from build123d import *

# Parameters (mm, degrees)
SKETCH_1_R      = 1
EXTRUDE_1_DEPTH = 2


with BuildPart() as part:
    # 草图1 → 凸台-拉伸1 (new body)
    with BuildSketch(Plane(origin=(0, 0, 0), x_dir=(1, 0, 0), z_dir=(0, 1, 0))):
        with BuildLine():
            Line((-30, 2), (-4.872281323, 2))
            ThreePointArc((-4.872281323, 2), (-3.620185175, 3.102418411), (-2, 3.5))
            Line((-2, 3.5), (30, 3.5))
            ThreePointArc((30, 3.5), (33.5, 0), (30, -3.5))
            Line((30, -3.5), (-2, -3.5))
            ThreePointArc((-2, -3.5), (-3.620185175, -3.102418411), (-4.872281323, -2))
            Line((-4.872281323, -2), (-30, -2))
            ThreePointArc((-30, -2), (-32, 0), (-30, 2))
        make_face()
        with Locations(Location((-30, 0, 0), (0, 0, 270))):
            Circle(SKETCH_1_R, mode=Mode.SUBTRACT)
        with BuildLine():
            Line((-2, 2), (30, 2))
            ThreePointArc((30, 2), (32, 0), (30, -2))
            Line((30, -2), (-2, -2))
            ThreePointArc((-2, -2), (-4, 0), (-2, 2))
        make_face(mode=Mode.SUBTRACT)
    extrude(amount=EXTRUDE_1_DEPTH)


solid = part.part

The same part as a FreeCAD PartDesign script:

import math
import FreeCAD as App
import Part
import Sketcher

V = App.Vector

doc = App.newDocument("Part")
body = doc.addObject("PartDesign::Body", "Body")

# Sketch on XZ plane
sketch1 = body.newObject("Sketcher::SketchObject", "Sketch")
sketch1.AttachmentSupport = (doc.getObject("XZ_Plane"), [""])
sketch1.MapMode = "FlatFace"
sketch1.addGeometry([
    Part.LineSegment(V(-4.9, -2, 0), V(-30, -2, 0)),  # 0
    Part.ArcOfCircle(Part.Circle(V(-30, 0, 0), V(0, 0, 1), 2), math.radians(90), math.radians(270)),  # 1
    Part.LineSegment(V(-30, 2, 0), V(-4.9, 2, 0)),  # 2
    Part.ArcOfCircle(Part.Circle(V(-2, 0, 0), V(0, 0, 1), 3.5), math.radians(90), math.radians(145)),  # 3
    Part.LineSegment(V(-2, 3.5, 0), V(30, 3.5, 0)),  # 4
    Part.ArcOfCircle(Part.Circle(V(30, 0, 0), V(0, 0, 1), 3.5), math.radians(-90), math.radians(90)),  # 5
    Part.LineSegment(V(30, -3.5, 0), V(-2, -3.5, 0)),  # 6
    Part.ArcOfCircle(Part.Circle(V(-2, 0, 0), V(0, 0, 1), 3.5), math.radians(-145), math.radians(-90)),  # 7
    Part.LineSegment(V(-2, -2, 0), V(30, -2, 0)),  # 8
    Part.ArcOfCircle(Part.Circle(V(30, 0, 0), V(0, 0, 1), 2), math.radians(-90), math.radians(90)),  # 9
    Part.LineSegment(V(30, 2, 0), V(-2, 2, 0)),  # 10
    Part.ArcOfCircle(Part.Circle(V(-2, 0, 0), V(0, 0, 1), 2), math.radians(90), math.radians(270)),  # 11
    Part.Circle(V(-30, 0, 0), V(0, 0, 1), 1),  # 12
], False)
sketch1.addConstraint([
    Sketcher.Constraint("Tangent", 0, 2, 1, 2),
    Sketcher.Constraint("Tangent", 1, 1, 2, 1),
    Sketcher.Constraint("Coincident", 2, 2, 3, 2),
    Sketcher.Constraint("Tangent", 3, 1, 4, 1),
    Sketcher.Constraint("Tangent", 4, 2, 5, 2),
    Sketcher.Constraint("Tangent", 5, 1, 6, 1),
    Sketcher.Constraint("Tangent", 6, 2, 7, 2),
    Sketcher.Constraint("Coincident", 7, 1, 0, 1),
    Sketcher.Constraint("Tangent", 8, 2, 9, 1),
    Sketcher.Constraint("Tangent", 9, 2, 10, 1),
    Sketcher.Constraint("Tangent", 10, 2, 11, 1),
    Sketcher.Constraint("Tangent", 11, 2, 8, 1),
    Sketcher.Constraint("Horizontal", 0),
    Sketcher.Constraint("Horizontal", 2),
    Sketcher.Constraint("Horizontal", 4),
    Sketcher.Constraint("Horizontal", 6),
    Sketcher.Constraint("Horizontal", 8),
    Sketcher.Constraint("Horizontal", 10),
    Sketcher.Constraint("Coincident", 7, 3, 3, 3),
    Sketcher.Constraint("Coincident", 9, 3, 5, 3),
    Sketcher.Constraint("Coincident", 11, 3, 3, 3),
    Sketcher.Constraint("Coincident", 12, 3, 1, 3),
    Sketcher.Constraint("Equal", 1, 9),
    Sketcher.Constraint("Symmetric", 1, 3, 5, 3, -1, 1),
    Sketcher.Constraint("PointOnObject", 1, 3, -1),
    Sketcher.Constraint("Diameter", 12, 2.0),
    Sketcher.Constraint("Radius", 1, 2.0),
    Sketcher.Constraint("Radius", 3, 3.5),
    Sketcher.Constraint("DistanceX", 4, 1, 4, 2, 32.0),
    Sketcher.Constraint("DistanceX", 1, 3, -1, 1, 30.0),
])
pad1 = body.newObject("PartDesign::Pad", "Pad")
pad1.Profile = sketch1
pad1.Length = 2
pad1.Reversed = True

doc.recompute()
